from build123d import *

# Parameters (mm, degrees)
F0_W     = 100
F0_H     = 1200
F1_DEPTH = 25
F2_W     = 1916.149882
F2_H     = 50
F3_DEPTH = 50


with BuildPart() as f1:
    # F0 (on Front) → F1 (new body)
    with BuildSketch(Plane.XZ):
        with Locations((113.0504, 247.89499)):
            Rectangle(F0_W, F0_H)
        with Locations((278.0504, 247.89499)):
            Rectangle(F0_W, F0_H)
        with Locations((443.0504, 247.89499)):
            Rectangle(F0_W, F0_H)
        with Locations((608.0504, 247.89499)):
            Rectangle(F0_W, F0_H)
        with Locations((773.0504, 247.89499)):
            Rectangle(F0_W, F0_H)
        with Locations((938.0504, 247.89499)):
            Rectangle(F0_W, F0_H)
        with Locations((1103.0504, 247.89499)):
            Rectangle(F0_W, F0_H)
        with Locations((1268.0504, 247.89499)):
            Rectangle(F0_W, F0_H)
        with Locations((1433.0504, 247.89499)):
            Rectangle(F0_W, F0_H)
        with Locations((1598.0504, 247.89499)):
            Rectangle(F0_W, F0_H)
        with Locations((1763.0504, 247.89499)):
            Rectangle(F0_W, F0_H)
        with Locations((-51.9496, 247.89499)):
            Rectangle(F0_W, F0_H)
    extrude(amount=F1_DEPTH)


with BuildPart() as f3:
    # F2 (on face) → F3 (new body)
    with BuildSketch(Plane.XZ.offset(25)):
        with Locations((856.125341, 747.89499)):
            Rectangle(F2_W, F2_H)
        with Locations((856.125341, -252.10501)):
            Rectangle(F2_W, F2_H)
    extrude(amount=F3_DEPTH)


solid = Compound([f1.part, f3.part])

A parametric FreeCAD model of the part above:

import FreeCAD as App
import Part
import Sketcher


def add_polygon(sketch, points):
    """Adds a closed chain of lines whose ends are joined by coincident constraints."""
    first, n = sketch.GeometryCount, len(points)
    for a, b in zip(points, points[1:] + points[:1]):
        sketch.addGeometry(Part.LineSegment(App.Vector(*a, 0), App.Vector(*b, 0)), False)
    for i in range(n):
        sketch.addConstraint(Sketcher.Constraint("Coincident", first + i, 2, first + (i + 1) % n, 1))

doc = App.newDocument("Part")
body = doc.addObject("PartDesign::Body", "Body")
body.AllowCompound = True

sketch1 = doc.addObject("Sketcher::SketchObject", "Sketch")
body.addObject(sketch1)
sketch1.AttachmentSupport = (doc.XZ_Plane, [""])
sketch1.MapMode = "FlatFace"
add_polygon(sketch1, [(63, 848), (63, -352), (163, -352), (163, 848)])
add_polygon(sketch1, [(228, 848), (228, -352), (328, -352), (328, 848)])
add_polygon(sketch1, [(393, 848), (393, -352), (493, -352), (493, 848)])
add_polygon(sketch1, [(558, 848), (558, -352), (658, -352), (658, 848)])
add_polygon(sketch1, [(723, 848), (723, -352), (823, -352), (823, 848)])
add_polygon(sketch1, [(888, 848), (888, -352), (988, -352), (988, 848)])
add_polygon(sketch1, [(1053, 848), (1053, -352), (1153, -352), (1153, 848)])
add_polygon(sketch1, [(1218, 848), (1218, -352), (1318, -352), (1318, 848)])
add_polygon(sketch1, [(1383, 848), (1383, -352), (1483, -352), (1483, 848)])
add_polygon(sketch1, [(1548, 848), (1548, -352), (1648, -352), (1648, 848)])
add_polygon(sketch1, [(1713, 848), (1713, -352), (1813, -352), (1813, 848)])
add_polygon(sketch1, [(-102, 848), (-102, -352), (-2, -352), (-2, 848)])
sketch1.addConstraint([
    Sketcher.Constraint("Vertical", 0),
    Sketcher.Constraint("Horizontal", 1),
    Sketcher.Constraint("Vertical", 2),
    Sketcher.Constraint("Horizontal", 3),
    Sketcher.Constraint("Vertical", 4),
    Sketcher.Constraint("Horizontal", 5),
    Sketcher.Constraint("Vertical", 6),
    Sketcher.Constraint("Horizontal", 7),
    Sketcher.Constraint("Vertical", 8),
    Sketcher.Constraint("Horizontal", 9),
    Sketcher.Constraint("Vertical", 10),
    Sketcher.Constraint("Horizontal", 11),
    Sketcher.Constraint("Vertical", 12),
    Sketcher.Constraint("Horizontal", 13),
    Sketcher.Constraint("Vertical", 14),
    Sketcher.Constraint("Horizontal", 15),
    Sketcher.Constraint("Vertical", 16),
    Sketcher.Constraint("Horizontal", 17),
    Sketcher.Constraint("Vertical", 18),
    Sketcher.Constraint("Horizontal", 19),
    Sketcher.Constraint("Vertical", 20),
    Sketcher.Constraint("Horizontal", 21),
    Sketcher.Constraint("Vertical", 22),
    Sketcher.Constraint("Horizontal", 23),
    Sketcher.Constraint("Vertical", 24),
    Sketcher.Constraint("Horizontal", 25),
    Sketcher.Constraint("Vertical", 26),
    Sketcher.Constraint("Horizontal", 27),
    Sketcher.Constraint("Vertical", 28),
    Sketcher.Constraint("Horizontal", 29),
    Sketcher.Constraint("Vertical", 30),
    Sketcher.Constraint("Horizontal", 31),
    Sketcher.Constraint("Vertical", 32),
    Sketcher.Constraint("Horizontal", 33),
    Sketcher.Constraint("Vertical", 34),
    Sketcher.Constraint("Horizontal", 35),
    Sketcher.Constraint("Vertical", 36),
    Sketcher.Constraint("Horizontal", 37),
    Sketcher.Constraint("Vertical", 38),
    Sketcher.Constraint("Horizontal", 39),
    Sketcher.Constraint("Vertical", 40),
    Sketcher.Constraint("Horizontal", 41),
    Sketcher.Constraint("Vertical", 42),
    Sketcher.Constraint("Horizontal", 43),
    Sketcher.Constraint("Vertical", 44),
    Sketcher.Constraint("Horizontal", 45),
    Sketcher.Constraint("Vertical", 46),
    Sketcher.Constraint("Horizontal", 47),
    Sketcher.Constraint("Horizontal", 1, 2, 4, 2),
    Sketcher.Constraint("Horizontal", 3, 2, 6, 2),
    Sketcher.Constraint("Horizontal", 5, 2, 8, 2),
    Sketcher.Constraint("Horizontal", 7, 2, 10, 2),
    Sketcher.Constraint("Horizontal", 9, 2, 12, 2),
    Sketcher.Constraint("Horizontal", 11, 2, 14, 2),
    Sketcher.Constraint("Horizontal", 13, 2, 16, 2),
    Sketcher.Constraint("Horizontal", 15, 2, 18, 2),
    Sketcher.Constraint("Horizontal", 17, 2, 20, 2),
    Sketcher.Constraint("Horizontal", 19, 2, 22, 2),
    Sketcher.Constraint("Horizontal", 21, 2, 24, 2),
    Sketcher.Constraint("Horizontal", 23, 2, 26, 2),
    Sketcher.Constraint("Horizontal", 25, 2, 28, 2),
    Sketcher.Constraint("Horizontal", 27, 2, 30, 2),
    Sketcher.Constraint("Horizontal", 29, 2, 32, 2),
    Sketcher.Constraint("Horizontal", 31, 2, 34, 2),
    Sketcher.Constraint("Horizontal", 33, 2, 36, 2),
    Sketcher.Constraint("Horizontal", 35, 2, 38, 2),
    Sketcher.Constraint("Horizontal", 37, 2, 40, 2),
    Sketcher.Constraint("Horizontal", 39, 2, 42, 2),
    Sketcher.Constraint("Horizontal", 41, 2, 44, 2),
    Sketcher.Constraint("Horizontal", 43, 2, 46, 2),
    Sketcher.Constraint("Equal", 3, 5),
    Sketcher.Constraint("Equal", 7, 9),
    Sketcher.Constraint("Equal", 11, 13),
    Sketcher.Constraint("Equal", 15, 17),
    Sketcher.Constraint("Equal", 19, 21),
    Sketcher.Constraint("Equal", 23, 25),
    Sketcher.Constraint("Equal", 27, 29),
    Sketcher.Constraint("Equal", 31, 33),
    Sketcher.Constraint("Equal", 35, 37),
    Sketcher.Constraint("Equal", 39, 41),
    Sketcher.Constraint("Equal", 43, 45),
    Sketcher.Constraint("DistanceX", 1, 1, 1, 2, 100.0),
    Sketcher.Constraint("DistanceY", 0, 2, 0, 1, 1200.0),
    Sketcher.Constraint("DistanceX", 1, 2, 4, 2, 65.0),
    Sketcher.Constraint("DistanceX", 5, 2, 8, 2, 65.0),
    Sketcher.Constraint("DistanceX", 9, 2, 12, 2, 65.0),
    Sketcher.Constraint("DistanceX", 13, 2, 16, 2, 65.0),
    Sketcher.Constraint("DistanceX", 17, 2, 20, 2, 65.0),
    Sketcher.Constraint("DistanceX", 21, 2, 24, 2, 65.0),
    Sketcher.Constraint("DistanceX", 25, 2, 28, 2, 65.0),
    Sketcher.Constraint("DistanceX", 29, 2, 32, 2, 65.0),
    Sketcher.Constraint("DistanceX", 33, 2, 36, 2, 65.0),
    Sketcher.Constraint("DistanceX", 37, 2, 40, 2, 65.0),
    Sketcher.Constraint("DistanceX", 44, 2, 0, 2, 165.0),
    Sketcher.Constraint("DistanceX", -1, 1, 0, 2, 63.0504),
    Sketcher.Constraint("DistanceY", 0, 2, -1, 1, 352.10501),
])
pad1 = doc.addObject("PartDesign::Pad", "Pad")
body.addObject(pad1)
pad1.Profile = sketch1
pad1.Length = 25
body2 = doc.addObject("PartDesign::Body", "Body001")
body2.AllowCompound = True

sketch2 = doc.addObject("Sketcher::SketchObject", "Sketch001")
body2.addObject(sketch2)
sketch2.AttachmentSupport = (doc.getObject("XZ_Plane001"), [""])
sketch2.MapMode = "FlatFace"
sketch2.AttachmentOffset = App.Placement(App.Vector(0, 0, 25), App.Rotation())
add_polygon(sketch2, [(-102, 773), (-102, 723), (1814, 723), (1814, 773)])
add_polygon(sketch2, [(-102, -227), (-102, -277), (1814, -277), (1814, -227)])
sketch2.addConstraint([
    Sketcher.Constraint("Vertical", 0),
    Sketcher.Constraint("Horizontal", 1),
    Sketcher.Constraint("Vertical", 2),
    Sketcher.Constraint("Horizontal", 3),
    Sketcher.Constraint("Vertical", 4),
    Sketcher.Constraint("Horizontal", 5),
    Sketcher.Constraint("Vertical", 6),
    Sketcher.Constraint("Horizontal", 7),
    Sketcher.Constraint("Vertical", 3, 2, 4, 2),
    Sketcher.Constraint("Vertical", 2, 2, 5, 2),
    Sketcher.Constraint("Equal", 2, 4),
    Sketcher.Constraint("DistanceY", 0, 2, 0, 1, 50.0),
    Sketcher.Constraint("DistanceY", 4, 2, 0, 2, 1000.0),
    Sketcher.Constraint("DistanceX", 1, 1, 1, 2, 1916.149882),
    Sketcher.Constraint("DistanceX", 0, 2, -1, 1, 101.9496),
    Sketcher.Constraint("DistanceY", -1, 1, 0, 2, 722.89499),
])
pad2 = doc.addObject("PartDesign::Pad", "Pad001")
body2.addObject(pad2)
pad2.Profile = sketch2
pad2.Length = 50

doc.recompute()
